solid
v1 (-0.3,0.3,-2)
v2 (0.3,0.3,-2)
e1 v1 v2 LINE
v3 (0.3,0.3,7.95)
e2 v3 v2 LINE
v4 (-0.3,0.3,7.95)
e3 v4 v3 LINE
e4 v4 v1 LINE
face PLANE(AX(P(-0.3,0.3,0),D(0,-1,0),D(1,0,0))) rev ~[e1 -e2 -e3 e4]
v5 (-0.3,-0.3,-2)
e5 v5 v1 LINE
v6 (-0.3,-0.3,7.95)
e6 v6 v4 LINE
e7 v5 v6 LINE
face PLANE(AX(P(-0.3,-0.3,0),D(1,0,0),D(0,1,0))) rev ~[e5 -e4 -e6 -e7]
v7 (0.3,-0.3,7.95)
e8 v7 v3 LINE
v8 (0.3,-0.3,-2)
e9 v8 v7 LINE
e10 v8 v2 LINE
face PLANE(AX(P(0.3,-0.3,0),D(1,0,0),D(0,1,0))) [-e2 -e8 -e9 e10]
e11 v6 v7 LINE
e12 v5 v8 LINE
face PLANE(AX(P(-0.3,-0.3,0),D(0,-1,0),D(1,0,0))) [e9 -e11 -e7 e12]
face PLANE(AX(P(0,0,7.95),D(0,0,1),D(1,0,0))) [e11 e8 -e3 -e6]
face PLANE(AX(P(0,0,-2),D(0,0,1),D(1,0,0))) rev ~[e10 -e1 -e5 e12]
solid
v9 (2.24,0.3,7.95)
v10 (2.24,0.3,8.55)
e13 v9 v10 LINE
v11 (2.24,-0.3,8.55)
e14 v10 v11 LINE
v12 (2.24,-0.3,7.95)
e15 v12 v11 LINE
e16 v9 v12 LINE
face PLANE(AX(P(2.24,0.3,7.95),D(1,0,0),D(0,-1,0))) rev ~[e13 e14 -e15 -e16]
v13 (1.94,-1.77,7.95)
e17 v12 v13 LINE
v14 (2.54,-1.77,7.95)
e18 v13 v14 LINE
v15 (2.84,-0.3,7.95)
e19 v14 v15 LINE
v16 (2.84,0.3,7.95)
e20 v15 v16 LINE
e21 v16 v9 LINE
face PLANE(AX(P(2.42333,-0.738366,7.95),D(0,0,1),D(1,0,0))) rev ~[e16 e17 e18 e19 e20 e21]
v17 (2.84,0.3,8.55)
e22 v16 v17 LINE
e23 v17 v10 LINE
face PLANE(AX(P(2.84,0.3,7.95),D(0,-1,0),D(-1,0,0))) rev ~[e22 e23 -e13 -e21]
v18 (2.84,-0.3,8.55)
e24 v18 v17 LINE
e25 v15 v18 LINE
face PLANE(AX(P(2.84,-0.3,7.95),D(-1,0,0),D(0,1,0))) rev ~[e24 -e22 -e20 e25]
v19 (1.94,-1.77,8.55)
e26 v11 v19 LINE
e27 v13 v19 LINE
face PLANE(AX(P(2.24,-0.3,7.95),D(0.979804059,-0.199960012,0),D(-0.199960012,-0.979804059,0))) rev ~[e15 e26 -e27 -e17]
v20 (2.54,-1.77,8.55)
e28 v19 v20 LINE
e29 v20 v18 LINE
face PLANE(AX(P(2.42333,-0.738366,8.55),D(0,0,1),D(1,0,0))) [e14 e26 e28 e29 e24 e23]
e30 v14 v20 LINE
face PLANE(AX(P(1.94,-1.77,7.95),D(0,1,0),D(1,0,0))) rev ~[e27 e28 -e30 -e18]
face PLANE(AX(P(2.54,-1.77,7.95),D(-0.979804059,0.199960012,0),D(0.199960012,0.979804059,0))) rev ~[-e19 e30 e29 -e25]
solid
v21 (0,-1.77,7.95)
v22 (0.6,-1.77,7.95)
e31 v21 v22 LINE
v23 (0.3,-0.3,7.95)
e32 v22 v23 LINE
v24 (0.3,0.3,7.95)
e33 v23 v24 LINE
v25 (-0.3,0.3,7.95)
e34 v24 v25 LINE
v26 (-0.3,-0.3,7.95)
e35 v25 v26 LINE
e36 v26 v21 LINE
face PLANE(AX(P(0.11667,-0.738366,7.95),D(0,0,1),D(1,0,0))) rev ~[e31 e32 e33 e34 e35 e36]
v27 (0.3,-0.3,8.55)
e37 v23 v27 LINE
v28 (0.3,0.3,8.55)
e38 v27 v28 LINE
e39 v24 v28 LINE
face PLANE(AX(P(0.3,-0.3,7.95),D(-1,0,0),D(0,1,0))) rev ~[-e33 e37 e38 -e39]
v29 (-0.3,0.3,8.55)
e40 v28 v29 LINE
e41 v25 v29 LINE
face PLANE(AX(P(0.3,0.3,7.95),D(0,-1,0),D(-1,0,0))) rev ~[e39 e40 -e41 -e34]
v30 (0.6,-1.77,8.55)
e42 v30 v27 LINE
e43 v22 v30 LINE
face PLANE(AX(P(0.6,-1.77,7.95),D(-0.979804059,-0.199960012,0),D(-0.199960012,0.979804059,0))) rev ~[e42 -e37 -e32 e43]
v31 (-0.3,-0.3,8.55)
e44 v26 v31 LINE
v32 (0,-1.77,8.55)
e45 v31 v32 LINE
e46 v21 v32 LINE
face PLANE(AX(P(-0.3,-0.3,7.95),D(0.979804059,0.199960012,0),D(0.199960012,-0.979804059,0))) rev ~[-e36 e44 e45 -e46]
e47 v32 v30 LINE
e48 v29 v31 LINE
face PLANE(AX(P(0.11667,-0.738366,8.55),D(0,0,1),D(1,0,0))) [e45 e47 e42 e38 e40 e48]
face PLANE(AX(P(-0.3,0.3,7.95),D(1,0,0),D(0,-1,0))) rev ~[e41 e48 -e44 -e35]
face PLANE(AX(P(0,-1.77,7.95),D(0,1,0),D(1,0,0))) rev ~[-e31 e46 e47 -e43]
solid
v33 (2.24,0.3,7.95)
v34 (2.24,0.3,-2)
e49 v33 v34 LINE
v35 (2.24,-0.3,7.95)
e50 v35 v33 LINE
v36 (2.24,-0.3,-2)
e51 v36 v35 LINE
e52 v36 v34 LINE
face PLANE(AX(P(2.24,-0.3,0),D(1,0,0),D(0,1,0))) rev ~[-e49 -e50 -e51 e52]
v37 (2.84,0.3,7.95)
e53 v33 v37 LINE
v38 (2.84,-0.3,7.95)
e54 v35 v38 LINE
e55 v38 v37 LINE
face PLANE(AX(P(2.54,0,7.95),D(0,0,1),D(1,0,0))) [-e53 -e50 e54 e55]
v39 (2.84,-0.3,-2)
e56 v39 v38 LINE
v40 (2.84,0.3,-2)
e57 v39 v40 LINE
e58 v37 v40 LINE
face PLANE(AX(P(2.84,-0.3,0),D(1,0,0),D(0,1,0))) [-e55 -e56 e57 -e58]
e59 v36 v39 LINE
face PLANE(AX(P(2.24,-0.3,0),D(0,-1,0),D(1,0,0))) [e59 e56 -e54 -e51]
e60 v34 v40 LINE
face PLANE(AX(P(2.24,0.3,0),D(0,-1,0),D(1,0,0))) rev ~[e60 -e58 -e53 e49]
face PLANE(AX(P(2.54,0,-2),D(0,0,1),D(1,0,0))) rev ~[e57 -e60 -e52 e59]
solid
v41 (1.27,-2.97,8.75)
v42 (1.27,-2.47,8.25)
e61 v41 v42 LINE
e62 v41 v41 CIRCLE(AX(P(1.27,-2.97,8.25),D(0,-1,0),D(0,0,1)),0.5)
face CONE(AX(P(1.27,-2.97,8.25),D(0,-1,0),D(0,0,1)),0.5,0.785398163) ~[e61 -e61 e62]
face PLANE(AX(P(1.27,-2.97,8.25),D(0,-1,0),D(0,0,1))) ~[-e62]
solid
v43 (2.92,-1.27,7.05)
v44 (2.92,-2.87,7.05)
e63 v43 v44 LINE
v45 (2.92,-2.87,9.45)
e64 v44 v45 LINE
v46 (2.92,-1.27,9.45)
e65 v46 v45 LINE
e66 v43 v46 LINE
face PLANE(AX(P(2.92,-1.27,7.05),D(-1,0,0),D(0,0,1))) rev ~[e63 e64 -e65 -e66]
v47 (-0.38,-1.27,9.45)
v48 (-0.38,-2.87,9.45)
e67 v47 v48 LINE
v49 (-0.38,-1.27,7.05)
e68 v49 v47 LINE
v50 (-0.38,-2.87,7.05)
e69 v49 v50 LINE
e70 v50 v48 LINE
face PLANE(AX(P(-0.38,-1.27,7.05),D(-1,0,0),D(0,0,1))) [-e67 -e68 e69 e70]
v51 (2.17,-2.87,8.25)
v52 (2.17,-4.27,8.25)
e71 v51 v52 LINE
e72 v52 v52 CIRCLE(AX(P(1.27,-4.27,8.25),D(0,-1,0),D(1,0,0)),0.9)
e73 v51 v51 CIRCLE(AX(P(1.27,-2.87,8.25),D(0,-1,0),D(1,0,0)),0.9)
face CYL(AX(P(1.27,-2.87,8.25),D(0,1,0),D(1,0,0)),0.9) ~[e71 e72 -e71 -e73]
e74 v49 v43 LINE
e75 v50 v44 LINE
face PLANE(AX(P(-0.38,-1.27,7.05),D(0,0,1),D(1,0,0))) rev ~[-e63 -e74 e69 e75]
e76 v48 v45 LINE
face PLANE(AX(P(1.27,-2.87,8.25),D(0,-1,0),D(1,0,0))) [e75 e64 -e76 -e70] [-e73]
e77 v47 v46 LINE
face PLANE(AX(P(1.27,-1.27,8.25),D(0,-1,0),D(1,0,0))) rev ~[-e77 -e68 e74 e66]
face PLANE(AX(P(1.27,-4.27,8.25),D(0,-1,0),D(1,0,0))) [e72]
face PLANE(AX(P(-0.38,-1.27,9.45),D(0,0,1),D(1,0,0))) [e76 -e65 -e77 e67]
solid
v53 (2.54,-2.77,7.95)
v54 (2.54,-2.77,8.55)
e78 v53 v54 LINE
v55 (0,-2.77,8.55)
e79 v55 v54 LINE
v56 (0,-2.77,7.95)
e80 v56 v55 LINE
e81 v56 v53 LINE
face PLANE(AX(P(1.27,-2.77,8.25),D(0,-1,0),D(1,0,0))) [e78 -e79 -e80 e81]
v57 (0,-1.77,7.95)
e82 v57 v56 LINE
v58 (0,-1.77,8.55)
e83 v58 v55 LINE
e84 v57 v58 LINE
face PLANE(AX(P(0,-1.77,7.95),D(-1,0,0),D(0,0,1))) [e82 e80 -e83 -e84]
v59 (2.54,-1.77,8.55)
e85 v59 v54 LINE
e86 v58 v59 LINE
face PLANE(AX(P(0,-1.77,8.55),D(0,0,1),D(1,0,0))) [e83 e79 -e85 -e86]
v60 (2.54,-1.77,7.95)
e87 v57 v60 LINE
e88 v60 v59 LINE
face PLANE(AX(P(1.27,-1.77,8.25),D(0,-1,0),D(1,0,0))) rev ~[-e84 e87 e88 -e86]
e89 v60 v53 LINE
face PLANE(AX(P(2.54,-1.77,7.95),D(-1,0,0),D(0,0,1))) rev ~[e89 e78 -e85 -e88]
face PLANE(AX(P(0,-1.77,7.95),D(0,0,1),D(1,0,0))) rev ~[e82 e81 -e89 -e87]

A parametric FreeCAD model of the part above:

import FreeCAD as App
import Part
import Sketcher
Q = App.Units.Quantity

doc = App.newDocument("Part")
body = doc.addObject("PartDesign::Body", "Body")
body.AllowCompound = True

# Sketch on XY plane
sketch1 = body.newObject("Sketcher::SketchObject", "Sketch")
sketch1.AttachmentSupport = (doc.getObject("XY_Plane"), [""])
sketch1.MapMode = "FlatFace"
sketch1.addGeometry(Part.LineSegment(App.Vector(-0.3, 0.3, 0), App.Vector(-0.3, -0.3, 0)), False)
sketch1.addGeometry(Part.LineSegment(App.Vector(-0.3, -0.3, 0), App.Vector(0.3, -0.3, 0)), False)
sketch1.addGeometry(Part.LineSegment(App.Vector(0.3, -0.3, 0), App.Vector(0.3, 0.3, 0)), False)
sketch1.addGeometry(Part.LineSegment(App.Vector(0.3, 0.3, 0), App.Vector(-0.3, 0.3, 0)), False)
sketch1.addGeometry(Part.LineSegment(App.Vector(2.2, 0.3, 0), App.Vector(2.2, -0.3, 0)), False)
sketch1.addGeometry(Part.LineSegment(App.Vector(2.2, -0.3, 0), App.Vector(2.8, -0.3, 0)), False)
sketch1.addGeometry(Part.LineSegment(App.Vector(2.8, -0.3, 0), App.Vector(2.8, 0.3, 0)), False)
sketch1.addGeometry(Part.LineSegment(App.Vector(2.8, 0.3, 0), App.Vector(2.2, 0.3, 0)), False)
sketch1.addConstraint(Sketcher.Constraint("Coincident", 0, 2, 1, 1))
sketch1.addConstraint(Sketcher.Constraint("Coincident", 1, 2, 2, 1))
sketch1.addConstraint(Sketcher.Constraint("Coincident", 2, 2, 3, 1))
sketch1.addConstraint(Sketcher.Constraint("Coincident", 3, 2, 0, 1))
sketch1.addConstraint(Sketcher.Constraint("Coincident", 4, 2, 5, 1))
sketch1.addConstraint(Sketcher.Constraint("Coincident", 5, 2, 6, 1))
sketch1.addConstraint(Sketcher.Constraint("Coincident", 6, 2, 7, 1))
sketch1.addConstraint(Sketcher.Constraint("Coincident", 7, 2, 4, 1))
sketch1.addConstraint(Sketcher.Constraint("Vertical", 0))
sketch1.addConstraint(Sketcher.Constraint("Horizontal", 1))
sketch1.addConstraint(Sketcher.Constraint("Vertical", 2))
sketch1.addConstraint(Sketcher.Constraint("Horizontal", 3))
sketch1.addConstraint(Sketcher.Constraint("Vertical", 4))
sketch1.addConstraint(Sketcher.Constraint("Horizontal", 5))
sketch1.addConstraint(Sketcher.Constraint("Vertical", 6))
sketch1.addConstraint(Sketcher.Constraint("Horizontal", 7))
sketch1.addConstraint(Sketcher.Constraint("Symmetric", 0, 2, 2, 2, -1, 1))
sketch1.addConstraint(Sketcher.Constraint("Horizontal", 1, 2, 4, 2))
sketch1.addConstraint(Sketcher.Constraint("Horizontal", 3, 2, 6, 2))
sketch1.addConstraint(Sketcher.Constraint("Equal", 3, 5))
sketch1.addConstraint(Sketcher.Constraint("Equal", 7, 0))
sketch1.addConstraint(Sketcher.Constraint("DistanceX", 1, 1, 1, 2, Q("0.6 mm")))
sketch1.addConstraint(Sketcher.Constraint("DistanceX", -1, 1, 4, 2, Q("2.24 mm")))
pad1 = body.newObject("PartDesign::Pad", "Pad")
pad1.Profile = sketch1
pad1.Type = "TwoLengths"
pad1.Length = 7.95
pad1.Length2 = 2
body2 = doc.addObject("PartDesign::Body", "Body001")
body2.AllowCompound = True

# Sketch on XY plane
sketch2 = body2.newObject("Sketcher::SketchObject", "Sketch001")
sketch2.AttachmentSupport = (doc.getObject("XY_Plane001"), [""])
sketch2.MapMode = "FlatFace"
sketch2.AttachmentOffset = App.Placement(App.Vector(0, 0, 7.95), App.Rotation())
sketch2.addGeometry(Part.LineSegment(App.Vector(0.3, 0.3, 0), App.Vector(-0.3, 0.3, 0)), False)
sketch2.addGeometry(Part.LineSegment(App.Vector(-0.3, 0.3, 0), App.Vector(-0.3, -0.3, 0)), False)
sketch2.addGeometry(Part.LineSegment(App.Vector(-0.3, -0.3, 0), App.Vector(0, -1.8, 0)), False)
sketch2.addGeometry(Part.LineSegment(App.Vector(0, -1.8, 0), App.Vector(0.6, -1.8, 0)), False)
sketch2.addGeometry(Part.LineSegment(App.Vector(0.6, -1.8, 0), App.Vector(0.3, -0.3, 0)), False)
sketch2.addGeometry(Part.LineSegment(App.Vector(0.3, -0.3, 0), App.Vector(0.3, 0.3, 0)), False)
sketch2.addGeometry(Part.LineSegment(App.Vector(2.8, 0.3, 0), App.Vector(2.2, 0.3, 0)), False)
sketch2.addGeometry(Part.LineSegment(App.Vector(2.2, 0.3, 0), App.Vector(2.2, -0.3, 0)), False)
sketch2.addGeometry(Part.LineSegment(App.Vector(2.2, -0.3, 0), App.Vector(1.9, -1.8, 0)), False)
sketch2.addGeometry(Part.LineSegment(App.Vector(1.9, -1.8, 0), App.Vector(2.5, -1.8, 0)), False)
sketch2.addGeometry(Part.LineSegment(App.Vector(2.5, -1.8, 0), App.Vector(2.8, -0.3, 0)), False)
sketch2.addGeometry(Part.LineSegment(App.Vector(2.8, -0.3, 0), App.Vector(2.8, 0.3, 0)), False)
sketch2.addConstraint(Sketcher.Constraint("Coincident", 0, 2, 1, 1))
sketch2.addConstraint(Sketcher.Constraint("Coincident", 1, 2, 2, 1))
sketch2.addConstraint(Sketcher.Constraint("Coincident", 2, 2, 3, 1))
sketch2.addConstraint(Sketcher.Constraint("Coincident", 3, 2, 4, 1))
sketch2.addConstraint(Sketcher.Constraint("Coincident", 4, 2, 5, 1))
sketch2.addConstraint(Sketcher.Constraint("Coincident", 5, 2, 0, 1))
sketch2.addConstraint(Sketcher.Constraint("Coincident", 6, 2, 7, 1))
sketch2.addConstraint(Sketcher.Constraint("Coincident", 7, 2, 8, 1))
sketch2.addConstraint(Sketcher.Constraint("Coincident", 8, 2, 9, 1))
sketch2.addConstraint(Sketcher.Constraint("Coincident", 9, 2, 10, 1))
sketch2.addConstraint(Sketcher.Constraint("Coincident", 10, 2, 11, 1))
sketch2.addConstraint(Sketcher.Constraint("Coincident", 11, 2, 6, 1))
sketch2.addConstraint(Sketcher.Constraint("Horizontal", 0))
sketch2.addConstraint(Sketcher.Constraint("Vertical", 1))
sketch2.addConstraint(Sketcher.Constraint("Horizontal", 3))
sketch2.addConstraint(Sketcher.Constraint("Vertical", 5))
sketch2.addConstraint(Sketcher.Constraint("Horizontal", 6))
sketch2.addConstraint(Sketcher.Constraint("Vertical", 7))
sketch2.addConstraint(Sketcher.Constraint("Horizontal", 9))
sketch2.addConstraint(Sketcher.Constraint("Vertical", 11))
sketch2.addConstraint(Sketcher.Constraint("Symmetric", 0, 2, 4, 2, -1, 1))
sketch2.addConstraint(Sketcher.Constraint("PointOnObject", 2, 2, -2))
sketch2.addConstraint(Sketcher.Constraint("Parallel", 2, 4))
sketch2.addConstraint(Sketcher.Constraint("Parallel", 8, 10))
sketch2.addConstraint(Sketcher.Constraint("Horizontal", 1, 2, 4, 2))
sketch2.addConstraint(Sketcher.Constraint("Horizontal", 5, 2, 6, 2))
sketch2.addConstraint(Sketcher.Constraint("Horizontal", 4, 2, 7, 2))
sketch2.addConstraint(Sketcher.Constraint("Horizontal", 3, 2, 8, 2))
sketch2.addConstraint(Sketcher.Constraint("Horizontal", 7, 2, 10, 2))
sketch2.addConstraint(Sketcher.Constraint("Equal", 3, 6))
sketch2.addConstraint(Sketcher.Constraint("Equal", 9, 1))
sketch2.addConstraint(Sketcher.Constraint("Equal", 4, 8))
sketch2.addConstraint(Sketcher.Constraint("DistanceX", 0, 2, 0, 1, Q("0.6 mm")))
sketch2.addConstraint(Sketcher.Constraint("DistanceY", 2, 2, -1, 1, Q("1.77 mm")))
sketch2.addConstraint(Sketcher.Constraint("DistanceX", -1, 1, 6, 2, Q("2.24 mm")))
pad2 = body2.newObject("PartDesign::Pad", "Pad001")
pad2.Profile = sketch2
pad2.Length = 0.6
body3 = doc.addObject("PartDesign::Body", "Body002")

# Sketch on XZ plane
sketch3 = body3.newObject("Sketcher::SketchObject", "Sketch002")
sketch3.AttachmentSupport = (doc.getObject("XZ_Plane002"), [""])
sketch3.MapMode = "FlatFace"
sketch3.AttachmentOffset = App.Placement(App.Vector(0, 0, 1.77), App.Rotation())
sketch3.addGeometry(Part.LineSegment(App.Vector(0, 8.6, 0), App.Vector(0, 8, 0)), False)
sketch3.addGeometry(Part.LineSegment(App.Vector(0, 8, 0), App.Vector(2.5, 8, 0)), False)
sketch3.addGeometry(Part.LineSegment(App.Vector(2.5, 8, 0), App.Vector(2.5, 8.6, 0)), False)
sketch3.addGeometry(Part.LineSegment(App.Vector(2.5, 8.6, 0), App.Vector(0, 8.6, 0)), False)
sketch3.addConstraint(Sketcher.Constraint("Coincident", 0, 2, 1, 1))
sketch3.addConstraint(Sketcher.Constraint("Coincident", 1, 2, 2, 1))
sketch3.addConstraint(Sketcher.Constraint("Coincident", 2, 2, 3, 1))
sketch3.addConstraint(Sketcher.Constraint("Coincident", 3, 2, 0, 1))
sketch3.addConstraint(Sketcher.Constraint("Vertical", 0))
sketch3.addConstraint(Sketcher.Constraint("Horizontal", 1))
sketch3.addConstraint(Sketcher.Constraint("Vertical", 2))
sketch3.addConstraint(Sketcher.Constraint("Horizontal", 3))
sketch3.addConstraint(Sketcher.Constraint("PointOnObject", 0, 2, -2))
sketch3.addConstraint(Sketcher.Constraint("DistanceY", 0, 2, 0, 1, Q("0.6 mm")))
sketch3.addConstraint(Sketcher.Constraint("DistanceX", 1, 1, 1, 2, Q("2.54 mm")))
sketch3.addConstraint(Sketcher.Constraint("DistanceY", -1, 1, 0, 2, Q("7.95 mm")))
pad3 = body3.newObject("PartDesign::Pad", "Pad002")
pad3.Profile = sketch3
pad3.Length = 1
body4 = doc.addObject("PartDesign::Body", "Body003")

# Sketch on YZ plane
sketch4 = body4.newObject("Sketcher::SketchObject", "Sketch003")
sketch4.AttachmentSupport = (doc.getObject("YZ_Plane003"), [""])
sketch4.MapMode = "FlatFace"
sketch4.AttachmentOffset = App.Placement(App.Vector(0, 0, 1.27), App.Rotation())
sketch4.addGeometry(Part.LineSegment(App.Vector(-3, 8.2, 0), App.Vector(-2.5, 8.2, 0)), False)
sketch4.addGeometry(Part.LineSegment(App.Vector(-2.5, 8.2, 0), App.Vector(-3, 8.8, 0)), False)
sketch4.addGeometry(Part.LineSegment(App.Vector(-3, 8.8, 0), App.Vector(-3, 8.2, 0)), False)
sketch4.addGeometry(Part.LineSegment(App.Vector(-2.5, 8.2, 0), App.Vector(-3, 8.2, 0)), True)  # axis
sketch4.addConstraint(Sketcher.Constraint("Coincident", 0, 2, 1, 1))
sketch4.addConstraint(Sketcher.Constraint("Coincident", 1, 2, 2, 1))
sketch4.addConstraint(Sketcher.Constraint("Coincident", 2, 2, 0, 1))
sketch4.addConstraint(Sketcher.Constraint("Horizontal", 0))
sketch4.addConstraint(Sketcher.Constraint("Vertical", 2))
sketch4.addConstraint(Sketcher.Constraint("Horizontal", 3))
sketch4.addConstraint(Sketcher.Constraint("Coincident", 3, 1, 0, 2))
sketch4.addConstraint(Sketcher.Constraint("Vertical", 1, 2, 3, 2))
sketch4.addConstraint(Sketcher.Constraint("Equal", 3, 2))
sketch4.addConstraint(Sketcher.Constraint("DistanceX", 0, 1, 0, 2, Q("0.5 mm")))
sketch4.addConstraint(Sketcher.Constraint("DistanceX", 0, 2, -1, 1, Q("2.47 mm")))
sketch4.addConstraint(Sketcher.Constraint("DistanceY", -1, 1, 0, 2, Q("8.25 mm")))
revolution = body4.newObject("PartDesign::Revolution", "Revolution")
revolution.Profile = sketch4
revolution.ReferenceAxis = (sketch4, ["Axis0"])
revolution.Angle = 360
body5 = doc.addObject("PartDesign::Body", "Body004")

# Sketch on XZ plane
sketch5 = body5.newObject("Sketcher::SketchObject", "Sketch004")
sketch5.AttachmentSupport = (doc.getObject("XZ_Plane004"), [""])
sketch5.MapMode = "FlatFace"
sketch5.AttachmentOffset = App.Placement(App.Vector(0, 0, 1.27), App.Rotation())
sketch5.addGeometry(Part.LineSegment(App.Vector(-0.4, 9.4, 0), App.Vector(-0.4, 7, 0)), False)
sketch5.addGeometry(Part.LineSegment(App.Vector(-0.4, 7, 0), App.Vector(2.9, 7, 0)), False)
sketch5.addGeometry(Part.LineSegment(App.Vector(2.9, 7, 0), App.Vector(2.9, 9.4, 0)), False)
sketch5.addGeometry(Part.LineSegment(App.Vector(2.9, 9.4, 0), App.Vector(-0.4, 9.4, 0)), False)
sketch5.addConstraint(Sketcher.Constraint("Coincident", 0, 2, 1, 1))
sketch5.addConstraint(Sketcher.Constraint("Coincident", 1, 2, 2, 1))
sketch5.addConstraint(Sketcher.Constraint("Coincident", 2, 2, 3, 1))
sketch5.addConstraint(Sketcher.Constraint("Coincident", 3, 2, 0, 1))
sketch5.addConstraint(Sketcher.Constraint("Vertical", 0))
sketch5.addConstraint(Sketcher.Constraint("Horizontal", 1))
sketch5.addConstraint(Sketcher.Constraint("Vertical", 2))
sketch5.addConstraint(Sketcher.Constraint("Horizontal", 3))
sketch5.addConstraint(Sketcher.Constraint("DistanceX", 1, 1, 1, 2, Q("3.3 mm")))
sketch5.addConstraint(Sketcher.Constraint("DistanceY", 0, 2, 0, 1, Q("2.4 mm")))
sketch5.addConstraint(Sketcher.Constraint("DistanceX", 0, 2, -1, 1, Q("0.38 mm")))
sketch5.addConstraint(Sketcher.Constraint("DistanceY", -1, 1, 0, 2, Q("7.05 mm")))
pad4 = body5.newObject("PartDesign::Pad", "Pad003")
pad4.Profile = sketch5
pad4.Length = 1.6

# Sketch on XZ plane
sketch6 = body5.newObject("Sketcher::SketchObject", "Sketch005")
sketch6.AttachmentSupport = (doc.getObject("XZ_Plane004"), [""])
sketch6.MapMode = "FlatFace"
sketch6.AttachmentOffset = App.Placement(App.Vector(0, 0, 2.87), App.Rotation())
sketch6.addGeometry(Part.Circle(App.Vector(1.3, 8.2, 0), App.Vector(0, 0, 1), 0.9), False)
sketch6.addConstraint(Sketcher.Constraint("Diameter", 0, Q("1.8 mm")))
sketch6.addConstraint(Sketcher.Constraint("DistanceX", -1, 1, 0, 3, Q("1.27 mm")))
sketch6.addConstraint(Sketcher.Constraint("DistanceY", -1, 1, 0, 3, Q("8.25 mm")))
pad5 = body5.newObject("PartDesign::Pad", "Pad004")
pad5.Profile = sketch6
pad5.Length = 1.4

doc.recompute()
